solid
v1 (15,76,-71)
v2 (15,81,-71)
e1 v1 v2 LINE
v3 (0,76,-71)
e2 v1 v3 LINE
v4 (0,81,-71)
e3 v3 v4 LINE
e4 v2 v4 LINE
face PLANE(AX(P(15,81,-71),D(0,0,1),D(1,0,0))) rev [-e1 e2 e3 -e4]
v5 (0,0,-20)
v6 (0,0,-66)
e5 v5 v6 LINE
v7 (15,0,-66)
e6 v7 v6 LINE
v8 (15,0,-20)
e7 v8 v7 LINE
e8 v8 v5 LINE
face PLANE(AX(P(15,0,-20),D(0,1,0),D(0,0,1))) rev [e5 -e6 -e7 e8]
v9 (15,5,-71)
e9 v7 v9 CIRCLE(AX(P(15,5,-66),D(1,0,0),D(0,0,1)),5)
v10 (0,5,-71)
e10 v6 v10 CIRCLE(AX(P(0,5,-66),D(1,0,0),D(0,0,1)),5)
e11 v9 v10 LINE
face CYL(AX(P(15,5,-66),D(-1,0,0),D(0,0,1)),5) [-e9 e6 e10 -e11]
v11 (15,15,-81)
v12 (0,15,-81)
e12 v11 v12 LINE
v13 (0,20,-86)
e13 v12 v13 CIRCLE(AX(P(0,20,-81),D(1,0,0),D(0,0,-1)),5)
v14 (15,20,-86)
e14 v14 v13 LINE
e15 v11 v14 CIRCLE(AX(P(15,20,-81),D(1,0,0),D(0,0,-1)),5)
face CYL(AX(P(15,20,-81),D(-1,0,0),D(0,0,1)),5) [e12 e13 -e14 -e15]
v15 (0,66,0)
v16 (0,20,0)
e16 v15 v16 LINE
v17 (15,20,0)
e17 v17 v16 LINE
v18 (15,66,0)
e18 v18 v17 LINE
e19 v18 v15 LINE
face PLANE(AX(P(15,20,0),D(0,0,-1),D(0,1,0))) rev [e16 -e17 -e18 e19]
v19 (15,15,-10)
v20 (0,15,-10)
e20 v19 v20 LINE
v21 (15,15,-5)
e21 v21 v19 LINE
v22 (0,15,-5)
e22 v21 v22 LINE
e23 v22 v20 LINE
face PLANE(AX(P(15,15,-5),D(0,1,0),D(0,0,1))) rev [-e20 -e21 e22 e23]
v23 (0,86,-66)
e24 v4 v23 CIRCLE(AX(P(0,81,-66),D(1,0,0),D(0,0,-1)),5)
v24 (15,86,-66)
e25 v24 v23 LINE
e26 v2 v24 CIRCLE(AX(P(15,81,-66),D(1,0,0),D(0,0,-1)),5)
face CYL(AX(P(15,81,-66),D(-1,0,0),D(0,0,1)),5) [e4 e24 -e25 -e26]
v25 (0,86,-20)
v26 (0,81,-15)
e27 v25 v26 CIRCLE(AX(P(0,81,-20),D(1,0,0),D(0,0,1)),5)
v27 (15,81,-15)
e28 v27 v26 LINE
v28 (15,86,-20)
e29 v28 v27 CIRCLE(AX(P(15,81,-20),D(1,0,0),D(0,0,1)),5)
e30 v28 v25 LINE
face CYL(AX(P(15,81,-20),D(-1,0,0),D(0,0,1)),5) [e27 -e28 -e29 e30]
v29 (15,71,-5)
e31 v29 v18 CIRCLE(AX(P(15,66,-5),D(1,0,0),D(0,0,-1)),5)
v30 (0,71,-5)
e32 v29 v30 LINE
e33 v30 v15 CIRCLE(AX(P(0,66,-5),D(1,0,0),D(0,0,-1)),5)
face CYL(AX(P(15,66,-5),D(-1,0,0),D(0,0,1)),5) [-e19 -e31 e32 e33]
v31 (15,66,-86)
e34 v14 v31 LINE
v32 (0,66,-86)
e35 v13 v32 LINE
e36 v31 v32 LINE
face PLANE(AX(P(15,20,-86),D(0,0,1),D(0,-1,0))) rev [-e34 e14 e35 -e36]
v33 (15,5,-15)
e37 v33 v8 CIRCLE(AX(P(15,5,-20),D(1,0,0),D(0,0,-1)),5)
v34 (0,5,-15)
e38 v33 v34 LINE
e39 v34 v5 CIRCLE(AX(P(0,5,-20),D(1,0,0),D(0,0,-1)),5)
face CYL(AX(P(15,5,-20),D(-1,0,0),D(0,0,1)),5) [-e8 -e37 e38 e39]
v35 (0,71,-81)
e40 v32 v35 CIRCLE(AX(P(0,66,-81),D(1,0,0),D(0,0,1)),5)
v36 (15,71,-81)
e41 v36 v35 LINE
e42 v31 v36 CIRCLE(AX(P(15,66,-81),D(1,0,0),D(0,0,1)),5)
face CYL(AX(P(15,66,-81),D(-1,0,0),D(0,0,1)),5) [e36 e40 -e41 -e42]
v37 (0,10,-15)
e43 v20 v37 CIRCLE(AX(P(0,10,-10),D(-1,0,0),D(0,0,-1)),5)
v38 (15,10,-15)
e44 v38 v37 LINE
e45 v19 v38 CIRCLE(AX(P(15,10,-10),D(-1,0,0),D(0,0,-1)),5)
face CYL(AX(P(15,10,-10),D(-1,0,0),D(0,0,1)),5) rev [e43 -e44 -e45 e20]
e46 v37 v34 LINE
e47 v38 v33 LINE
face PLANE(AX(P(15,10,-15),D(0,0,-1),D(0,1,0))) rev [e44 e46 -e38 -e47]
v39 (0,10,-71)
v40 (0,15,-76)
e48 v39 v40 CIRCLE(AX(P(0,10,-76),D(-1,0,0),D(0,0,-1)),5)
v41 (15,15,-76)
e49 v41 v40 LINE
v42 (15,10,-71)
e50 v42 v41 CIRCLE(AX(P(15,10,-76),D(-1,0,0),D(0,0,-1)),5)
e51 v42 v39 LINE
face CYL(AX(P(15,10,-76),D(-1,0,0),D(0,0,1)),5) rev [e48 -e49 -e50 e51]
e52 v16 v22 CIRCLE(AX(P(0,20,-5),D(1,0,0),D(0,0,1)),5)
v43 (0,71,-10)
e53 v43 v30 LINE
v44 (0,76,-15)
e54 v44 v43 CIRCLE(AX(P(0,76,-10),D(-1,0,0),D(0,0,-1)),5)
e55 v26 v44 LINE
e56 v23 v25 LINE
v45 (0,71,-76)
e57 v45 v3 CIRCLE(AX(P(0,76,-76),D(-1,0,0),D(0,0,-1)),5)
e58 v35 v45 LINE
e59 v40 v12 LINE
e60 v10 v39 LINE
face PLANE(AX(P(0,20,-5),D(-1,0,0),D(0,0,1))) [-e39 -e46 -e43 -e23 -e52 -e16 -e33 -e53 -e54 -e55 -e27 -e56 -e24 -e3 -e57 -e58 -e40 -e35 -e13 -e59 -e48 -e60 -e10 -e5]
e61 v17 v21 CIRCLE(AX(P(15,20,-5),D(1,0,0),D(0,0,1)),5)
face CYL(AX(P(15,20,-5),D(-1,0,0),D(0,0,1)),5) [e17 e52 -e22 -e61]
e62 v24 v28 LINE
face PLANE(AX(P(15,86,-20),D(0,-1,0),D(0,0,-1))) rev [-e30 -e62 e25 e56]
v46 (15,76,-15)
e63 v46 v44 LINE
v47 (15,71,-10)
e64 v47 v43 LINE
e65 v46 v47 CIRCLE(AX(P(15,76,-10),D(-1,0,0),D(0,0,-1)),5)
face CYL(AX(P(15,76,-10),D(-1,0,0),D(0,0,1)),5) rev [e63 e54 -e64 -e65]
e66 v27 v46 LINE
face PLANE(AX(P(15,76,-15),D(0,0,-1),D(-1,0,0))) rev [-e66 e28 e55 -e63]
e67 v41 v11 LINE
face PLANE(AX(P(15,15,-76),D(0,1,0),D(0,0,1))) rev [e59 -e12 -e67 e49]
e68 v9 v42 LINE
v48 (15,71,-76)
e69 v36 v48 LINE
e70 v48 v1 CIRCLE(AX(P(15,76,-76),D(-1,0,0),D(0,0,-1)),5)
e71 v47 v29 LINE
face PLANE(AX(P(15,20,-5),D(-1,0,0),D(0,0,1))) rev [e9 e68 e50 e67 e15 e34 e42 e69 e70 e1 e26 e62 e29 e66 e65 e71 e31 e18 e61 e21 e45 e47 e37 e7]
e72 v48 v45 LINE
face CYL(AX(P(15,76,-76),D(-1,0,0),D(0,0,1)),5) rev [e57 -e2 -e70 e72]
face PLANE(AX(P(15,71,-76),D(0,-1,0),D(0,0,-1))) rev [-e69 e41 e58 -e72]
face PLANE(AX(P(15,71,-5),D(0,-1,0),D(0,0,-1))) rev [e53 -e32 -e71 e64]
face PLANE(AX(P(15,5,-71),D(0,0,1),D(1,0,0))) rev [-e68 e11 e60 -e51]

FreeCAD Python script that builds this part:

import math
import FreeCAD as App
import Part
import Sketcher
from FreeCAD import Vector

doc = App.newDocument("Part")
body = doc.addObject("PartDesign::Body", "Body")

sketch1 = body.newObject("Sketcher::SketchObject", "Sketch")
sketch1.AttachmentSupport = (doc.getObject("YZ_Plane"), [""])
sketch1.MapMode = "FlatFace"
sketch1.addGeometry([
    Part.LineSegment(Vector(0, -20, 0), Vector(0, -66, 0)),
    Part.ArcOfCircle(Part.Circle(Vector(5, -66, 0), Vector(0, 0, 1), 5), math.radians(180), math.radians(270)),
    Part.LineSegment(Vector(5, -71, 0), Vector(10, -71, 0)),
    Part.ArcOfCircle(Part.Circle(Vector(10, -76, 0), Vector(0, 0, 1), 5), math.radians(0), math.radians(90)),
    Part.LineSegment(Vector(15, -76, 0), Vector(15, -81, 0)),
    Part.ArcOfCircle(Part.Circle(Vector(20, -81, 0), Vector(0, 0, 1), 5), math.radians(180), math.radians(270)),
    Part.LineSegment(Vector(20, -86, 0), Vector(66, -86, 0)),
    Part.ArcOfCircle(Part.Circle(Vector(66, -81, 0), Vector(0, 0, 1), 5), math.radians(-90), math.radians(0)),
    Part.LineSegment(Vector(71, -81, 0), Vector(71, -76, 0)),
    Part.ArcOfCircle(Part.Circle(Vector(76, -76, 0), Vector(0, 0, 1), 5), math.radians(90), math.radians(180)),
    Part.LineSegment(Vector(76, -71, 0), Vector(81, -71, 0)),
    Part.ArcOfCircle(Part.Circle(Vector(81, -66, 0), Vector(0, 0, 1), 5), math.radians(-90), math.radians(0)),
    Part.LineSegment(Vector(86, -66, 0), Vector(86, -20, 0)),
    Part.ArcOfCircle(Part.Circle(Vector(81, -20, 0), Vector(0, 0, 1), 5), math.radians(0), math.radians(90)),
    Part.LineSegment(Vector(81, -15, 0), Vector(76, -15, 0)),
    Part.ArcOfCircle(Part.Circle(Vector(76, -10, 0), Vector(0, 0, 1), 5), math.radians(180), math.radians(270)),
    Part.LineSegment(Vector(71, -10, 0), Vector(71, -5, 0)),
    Part.ArcOfCircle(Part.Circle(Vector(66, -5, 0), Vector(0, 0, 1), 5), math.radians(0), math.radians(90)),
    Part.LineSegment(Vector(66, 0, 0), Vector(20, 0, 0)),
    Part.ArcOfCircle(Part.Circle(Vector(20, -5, 0), Vector(0, 0, 1), 5), math.radians(90), math.radians(180)),
    Part.LineSegment(Vector(15, -5, 0), Vector(15, -10, 0)),
    Part.ArcOfCircle(Part.Circle(Vector(10, -10, 0), Vector(0, 0, 1), 5), math.radians(-90), math.radians(0)),
    Part.LineSegment(Vector(10, -15, 0), Vector(5, -15, 0)),
    Part.ArcOfCircle(Part.Circle(Vector(5, -20, 0), Vector(0, 0, 1), 5), math.radians(90), math.radians(180)),
], False)
sketch1.addConstraint([
    Sketcher.Constraint("Tangent", 0, 2, 1, 1),
    Sketcher.Constraint("Tangent", 1, 2, 2, 1),
    Sketcher.Constraint("Tangent", 2, 2, 3, 2),
    Sketcher.Constraint("Tangent", 3, 1, 4, 1),
    Sketcher.Constraint("Tangent", 4, 2, 5, 1),
    Sketcher.Constraint("Tangent", 5, 2, 6, 1),
    Sketcher.Constraint("Tangent", 6, 2, 7, 1),
    Sketcher.Constraint("Tangent", 7, 2, 8, 1),
    Sketcher.Constraint("Tangent", 8, 2, 9, 2),
    Sketcher.Constraint("Tangent", 9, 1, 10, 1),
    Sketcher.Constraint("Tangent", 10, 2, 11, 1),
    Sketcher.Constraint("Tangent", 11, 2, 12, 1),
    Sketcher.Constraint("Tangent", 12, 2, 13, 1),
    Sketcher.Constraint("Tangent", 13, 2, 14, 1),
    Sketcher.Constraint("Tangent", 14, 2, 15, 2),
    Sketcher.Constraint("Tangent", 15, 1, 16, 1),
    Sketcher.Constraint("Tangent", 16, 2, 17, 1),
    Sketcher.Constraint("Tangent", 17, 2, 18, 1),
    Sketcher.Constraint("Tangent", 18, 2, 19, 1),
    Sketcher.Constraint("Tangent", 19, 2, 20, 1),
    Sketcher.Constraint("Tangent", 20, 2, 21, 2),
    Sketcher.Constraint("Tangent", 21, 1, 22, 1),
    Sketcher.Constraint("Tangent", 22, 2, 23, 1),
    Sketcher.Constraint("Tangent", 23, 2, 0, 1),
    Sketcher.Constraint("Vertical", 0),
    Sketcher.Constraint("Horizontal", 2),
    Sketcher.Constraint("Vertical", 4),
    Sketcher.Constraint("Horizontal", 6),
    Sketcher.Constraint("Vertical", 8),
    Sketcher.Constraint("Horizontal", 10),
    Sketcher.Constraint("Vertical", 12),
    Sketcher.Constraint("Horizontal", 14),
    Sketcher.Constraint("Vertical", 16),
    Sketcher.Constraint("Horizontal", 18),
    Sketcher.Constraint("Vertical", 20),
    Sketcher.Constraint("Horizontal", 22),
    Sketcher.Constraint("Equal", 1, 3),
    Sketcher.Constraint("Equal", 3, 5),
    Sketcher.Constraint("Equal", 5, 7),
    Sketcher.Constraint("Equal", 7, 9),
    Sketcher.Constraint("Equal", 9, 11),
    Sketcher.Constraint("Equal", 11, 13),
    Sketcher.Constraint("Equal", 13, 15),
    Sketcher.Constraint("Equal", 15, 17),
    Sketcher.Constraint("Equal", 17, 19),
    Sketcher.Constraint("Equal", 19, 21),
    Sketcher.Constraint("Equal", 21, 23),
    Sketcher.Constraint("PointOnObject", 0, 2, -2),
    Sketcher.Constraint("PointOnObject", 17, 2, -1),
    Sketcher.Constraint("Horizontal", 3, 3, 9, 3),
    Sketcher.Constraint("Horizontal", 15, 3, 21, 3),
    Sketcher.Constraint("Vertical", 9, 3, 15, 3),
    Sketcher.Constraint("Vertical", 5, 3, 19, 3),
    Sketcher.Constraint("Equal", 2, 10),
    Sketcher.Constraint("Equal", 18, 0),
    Sketcher.Constraint("Equal", 22, 4),
    Sketcher.Constraint("Equal", 8, 16),
    Sketcher.Constraint("Radius", 1, 5.0),
    Sketcher.Constraint("DistanceX", 2, 1, 2, 2, 5.0),
    Sketcher.Constraint("DistanceX", 6, 1, 6, 2, 46.0),
])
pad1 = body.newObject("PartDesign::Pad", "Pad")
pad1.Profile = sketch1
pad1.Length = 15

doc.recompute()
